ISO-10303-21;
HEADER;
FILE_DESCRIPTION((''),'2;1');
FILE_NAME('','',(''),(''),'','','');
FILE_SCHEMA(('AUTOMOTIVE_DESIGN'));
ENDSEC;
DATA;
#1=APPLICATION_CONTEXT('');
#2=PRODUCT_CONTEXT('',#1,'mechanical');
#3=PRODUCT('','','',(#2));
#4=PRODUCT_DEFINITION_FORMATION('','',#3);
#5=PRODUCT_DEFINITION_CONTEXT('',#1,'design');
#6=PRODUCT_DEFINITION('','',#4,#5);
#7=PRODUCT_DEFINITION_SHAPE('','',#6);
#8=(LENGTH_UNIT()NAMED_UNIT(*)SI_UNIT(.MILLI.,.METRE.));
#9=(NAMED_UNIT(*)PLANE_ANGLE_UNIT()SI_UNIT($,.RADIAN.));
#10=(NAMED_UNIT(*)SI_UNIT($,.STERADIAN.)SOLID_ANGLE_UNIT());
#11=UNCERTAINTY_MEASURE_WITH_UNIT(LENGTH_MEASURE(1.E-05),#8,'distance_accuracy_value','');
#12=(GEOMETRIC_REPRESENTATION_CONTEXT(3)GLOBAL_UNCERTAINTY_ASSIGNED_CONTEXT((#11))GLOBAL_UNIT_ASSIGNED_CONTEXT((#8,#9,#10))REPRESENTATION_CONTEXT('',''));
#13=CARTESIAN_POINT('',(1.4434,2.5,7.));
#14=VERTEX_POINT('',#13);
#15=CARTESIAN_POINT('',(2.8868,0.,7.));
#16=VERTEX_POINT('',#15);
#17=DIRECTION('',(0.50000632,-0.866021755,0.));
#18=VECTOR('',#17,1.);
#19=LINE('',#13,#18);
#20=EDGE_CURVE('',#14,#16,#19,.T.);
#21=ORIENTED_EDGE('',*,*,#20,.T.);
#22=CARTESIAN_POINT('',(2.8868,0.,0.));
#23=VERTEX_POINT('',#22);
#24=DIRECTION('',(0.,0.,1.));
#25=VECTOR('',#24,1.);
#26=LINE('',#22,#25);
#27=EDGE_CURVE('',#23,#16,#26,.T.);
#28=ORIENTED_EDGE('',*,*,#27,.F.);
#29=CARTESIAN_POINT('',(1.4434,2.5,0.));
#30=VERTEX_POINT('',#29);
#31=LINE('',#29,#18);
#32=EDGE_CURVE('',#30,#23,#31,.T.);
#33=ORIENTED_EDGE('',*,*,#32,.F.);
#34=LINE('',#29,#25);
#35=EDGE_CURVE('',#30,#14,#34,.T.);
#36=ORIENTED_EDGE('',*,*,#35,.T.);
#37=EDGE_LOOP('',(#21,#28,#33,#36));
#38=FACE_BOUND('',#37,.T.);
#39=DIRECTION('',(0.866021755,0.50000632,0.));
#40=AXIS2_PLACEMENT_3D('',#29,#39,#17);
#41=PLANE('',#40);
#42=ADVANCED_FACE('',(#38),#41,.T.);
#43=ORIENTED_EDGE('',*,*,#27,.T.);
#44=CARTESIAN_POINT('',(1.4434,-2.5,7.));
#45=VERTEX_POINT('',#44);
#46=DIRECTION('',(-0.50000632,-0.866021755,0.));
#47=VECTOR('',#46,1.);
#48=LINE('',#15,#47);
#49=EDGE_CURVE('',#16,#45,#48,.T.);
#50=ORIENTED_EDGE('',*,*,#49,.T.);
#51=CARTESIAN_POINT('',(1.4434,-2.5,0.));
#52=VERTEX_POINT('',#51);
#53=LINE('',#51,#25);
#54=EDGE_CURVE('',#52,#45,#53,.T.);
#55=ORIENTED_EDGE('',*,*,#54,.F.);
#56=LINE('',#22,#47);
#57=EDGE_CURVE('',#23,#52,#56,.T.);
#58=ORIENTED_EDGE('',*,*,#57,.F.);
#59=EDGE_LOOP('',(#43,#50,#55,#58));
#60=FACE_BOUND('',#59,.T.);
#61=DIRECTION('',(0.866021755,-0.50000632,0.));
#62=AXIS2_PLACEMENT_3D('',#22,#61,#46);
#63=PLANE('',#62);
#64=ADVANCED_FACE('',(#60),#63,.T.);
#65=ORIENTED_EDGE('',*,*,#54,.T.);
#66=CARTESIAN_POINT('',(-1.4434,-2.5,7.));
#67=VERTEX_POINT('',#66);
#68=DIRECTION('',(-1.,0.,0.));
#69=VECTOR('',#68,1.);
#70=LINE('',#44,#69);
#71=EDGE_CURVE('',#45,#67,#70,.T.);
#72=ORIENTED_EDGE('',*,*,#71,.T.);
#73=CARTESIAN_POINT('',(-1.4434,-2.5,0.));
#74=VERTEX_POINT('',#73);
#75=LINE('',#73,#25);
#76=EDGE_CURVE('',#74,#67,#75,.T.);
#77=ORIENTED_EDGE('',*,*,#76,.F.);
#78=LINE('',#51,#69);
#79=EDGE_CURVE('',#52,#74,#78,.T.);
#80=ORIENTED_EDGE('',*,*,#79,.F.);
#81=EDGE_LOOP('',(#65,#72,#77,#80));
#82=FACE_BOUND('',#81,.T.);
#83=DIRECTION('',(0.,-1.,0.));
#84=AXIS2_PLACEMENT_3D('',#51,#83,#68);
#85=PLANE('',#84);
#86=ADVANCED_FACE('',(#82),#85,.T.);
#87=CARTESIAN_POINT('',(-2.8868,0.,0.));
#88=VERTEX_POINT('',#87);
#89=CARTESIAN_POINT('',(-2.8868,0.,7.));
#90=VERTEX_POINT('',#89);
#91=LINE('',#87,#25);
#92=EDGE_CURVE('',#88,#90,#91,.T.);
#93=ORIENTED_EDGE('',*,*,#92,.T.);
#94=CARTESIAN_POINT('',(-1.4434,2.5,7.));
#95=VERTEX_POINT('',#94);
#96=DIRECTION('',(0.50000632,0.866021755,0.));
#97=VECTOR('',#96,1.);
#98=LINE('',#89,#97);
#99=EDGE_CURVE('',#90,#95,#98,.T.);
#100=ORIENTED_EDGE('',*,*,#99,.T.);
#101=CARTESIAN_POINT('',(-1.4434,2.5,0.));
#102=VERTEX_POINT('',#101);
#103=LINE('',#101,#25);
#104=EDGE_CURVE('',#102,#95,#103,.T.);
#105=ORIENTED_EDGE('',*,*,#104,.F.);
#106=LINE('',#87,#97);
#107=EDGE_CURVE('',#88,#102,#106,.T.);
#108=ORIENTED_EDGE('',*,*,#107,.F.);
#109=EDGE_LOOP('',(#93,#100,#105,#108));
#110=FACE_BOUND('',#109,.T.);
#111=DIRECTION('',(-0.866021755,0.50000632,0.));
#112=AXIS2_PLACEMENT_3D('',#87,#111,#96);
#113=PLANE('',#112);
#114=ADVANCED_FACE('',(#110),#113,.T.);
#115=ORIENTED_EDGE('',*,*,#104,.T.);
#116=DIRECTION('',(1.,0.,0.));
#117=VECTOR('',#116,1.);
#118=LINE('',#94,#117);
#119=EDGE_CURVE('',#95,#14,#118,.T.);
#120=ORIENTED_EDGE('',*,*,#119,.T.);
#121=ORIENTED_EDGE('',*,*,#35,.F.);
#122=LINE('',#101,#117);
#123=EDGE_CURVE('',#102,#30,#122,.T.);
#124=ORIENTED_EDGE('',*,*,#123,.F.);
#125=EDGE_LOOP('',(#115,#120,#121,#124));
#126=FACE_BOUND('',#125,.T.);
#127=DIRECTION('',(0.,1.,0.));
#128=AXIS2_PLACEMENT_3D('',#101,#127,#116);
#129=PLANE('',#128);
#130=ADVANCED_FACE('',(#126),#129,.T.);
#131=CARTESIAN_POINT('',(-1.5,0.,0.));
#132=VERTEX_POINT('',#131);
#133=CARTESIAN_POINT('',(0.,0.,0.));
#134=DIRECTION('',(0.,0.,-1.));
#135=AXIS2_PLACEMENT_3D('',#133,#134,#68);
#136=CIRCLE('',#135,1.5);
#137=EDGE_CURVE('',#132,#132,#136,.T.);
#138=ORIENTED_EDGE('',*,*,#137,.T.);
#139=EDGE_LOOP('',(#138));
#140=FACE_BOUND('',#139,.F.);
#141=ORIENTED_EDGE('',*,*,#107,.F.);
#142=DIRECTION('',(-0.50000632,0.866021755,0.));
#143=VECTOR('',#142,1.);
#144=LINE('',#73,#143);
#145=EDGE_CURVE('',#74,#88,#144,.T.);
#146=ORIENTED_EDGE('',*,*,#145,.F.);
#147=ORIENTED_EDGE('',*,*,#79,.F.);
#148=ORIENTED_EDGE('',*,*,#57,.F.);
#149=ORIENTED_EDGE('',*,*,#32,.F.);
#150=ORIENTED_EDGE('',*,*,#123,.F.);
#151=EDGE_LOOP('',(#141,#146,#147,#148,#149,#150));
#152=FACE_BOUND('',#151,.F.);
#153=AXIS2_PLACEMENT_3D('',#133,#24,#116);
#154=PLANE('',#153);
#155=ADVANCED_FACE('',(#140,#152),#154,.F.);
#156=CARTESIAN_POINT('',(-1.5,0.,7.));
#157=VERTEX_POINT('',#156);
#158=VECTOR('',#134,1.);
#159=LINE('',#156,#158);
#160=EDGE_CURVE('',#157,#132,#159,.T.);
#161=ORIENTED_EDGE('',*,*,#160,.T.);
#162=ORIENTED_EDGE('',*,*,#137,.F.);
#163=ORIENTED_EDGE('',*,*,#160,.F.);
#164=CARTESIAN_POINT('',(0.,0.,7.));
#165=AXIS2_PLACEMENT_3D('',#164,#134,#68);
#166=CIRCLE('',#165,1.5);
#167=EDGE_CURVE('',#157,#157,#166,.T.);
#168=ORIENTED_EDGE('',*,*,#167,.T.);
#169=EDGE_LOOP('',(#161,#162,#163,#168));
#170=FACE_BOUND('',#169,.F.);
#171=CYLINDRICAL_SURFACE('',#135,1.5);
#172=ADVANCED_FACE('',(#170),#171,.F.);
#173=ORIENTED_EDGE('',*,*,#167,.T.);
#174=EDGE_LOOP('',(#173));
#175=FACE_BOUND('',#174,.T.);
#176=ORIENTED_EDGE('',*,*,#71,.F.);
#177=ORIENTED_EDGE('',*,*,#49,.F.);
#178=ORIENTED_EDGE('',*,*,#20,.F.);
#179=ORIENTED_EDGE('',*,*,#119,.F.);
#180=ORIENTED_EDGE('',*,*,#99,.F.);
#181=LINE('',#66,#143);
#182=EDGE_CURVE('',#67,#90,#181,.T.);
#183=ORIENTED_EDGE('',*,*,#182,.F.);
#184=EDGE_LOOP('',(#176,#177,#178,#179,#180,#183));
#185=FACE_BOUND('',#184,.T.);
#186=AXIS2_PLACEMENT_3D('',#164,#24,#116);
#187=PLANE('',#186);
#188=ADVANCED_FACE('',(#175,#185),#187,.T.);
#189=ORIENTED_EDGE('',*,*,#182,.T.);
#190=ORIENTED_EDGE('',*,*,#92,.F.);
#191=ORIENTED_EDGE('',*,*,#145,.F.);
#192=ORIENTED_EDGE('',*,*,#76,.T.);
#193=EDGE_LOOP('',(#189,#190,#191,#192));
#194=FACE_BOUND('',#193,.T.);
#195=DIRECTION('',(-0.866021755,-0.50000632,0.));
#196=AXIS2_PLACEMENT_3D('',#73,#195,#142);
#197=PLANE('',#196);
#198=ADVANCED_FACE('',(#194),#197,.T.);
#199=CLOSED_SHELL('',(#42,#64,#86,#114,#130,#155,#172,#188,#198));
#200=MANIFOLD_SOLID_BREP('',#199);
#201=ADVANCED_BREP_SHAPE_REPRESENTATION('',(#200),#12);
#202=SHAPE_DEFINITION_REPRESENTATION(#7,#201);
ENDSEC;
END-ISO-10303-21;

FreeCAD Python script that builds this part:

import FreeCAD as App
import Part
import Sketcher
Q = App.Units.Quantity


def add_polygon(sketch, points):
    """Adds a closed chain of lines whose ends are joined by coincident constraints."""
    first, n = sketch.GeometryCount, len(points)
    for a, b in zip(points, points[1:] + points[:1]):
        sketch.addGeometry(Part.LineSegment(App.Vector(*a, 0), App.Vector(*b, 0)), False)
    for i in range(n):
        sketch.addConstraint(Sketcher.Constraint("Coincident", first + i, 2, first + (i + 1) % n, 1))

doc = App.newDocument("Part")
body = doc.addObject("PartDesign::Body", "Body")

# Sketch on XY plane
sketch1 = doc.addObject("Sketcher::SketchObject", "Sketch")
body.addObject(sketch1)
sketch1.AttachmentSupport = (doc.XY_Plane, [""])
sketch1.MapMode = "FlatFace"
add_polygon(sketch1, [(1.4, -2.5), (2.9, 0), (1.4, 2.5), (-1.4, 2.5), (-2.9, 0), (-1.4, -2.5)])  # lines 0-5
sketch1.addConstraint(Sketcher.Constraint("Horizontal", 2))
sketch1.addConstraint(Sketcher.Constraint("Horizontal", 5))
sketch1.addConstraint(Sketcher.Constraint("Symmetric", 0, 2, 3, 2, -1, 1))
sketch1.addConstraint(Sketcher.Constraint("Symmetric", 1, 2, 4, 2, -1, 1))
sketch1.addConstraint(Sketcher.Constraint("PointOnObject", 0, 2, -1))
sketch1.addConstraint(Sketcher.Constraint("Parallel", 0, 3))
sketch1.addConstraint(Sketcher.Constraint("Vertical", 2, 2, 4, 2))
sketch1.addConstraint(Sketcher.Constraint("DistanceY", 4, 2, 2, 2, Q("5 mm")))
sketch1.addConstraint(Sketcher.Constraint("Angle", 0, Q("59.9996 deg")))
sketch1.addConstraint(Sketcher.Constraint("DistanceX", 2, 2, 2, 1, Q("2.8868 mm")))
pad1 = doc.addObject("PartDesign::Pad", "Pad")
body.addObject(pad1)
pad1.Profile = sketch1
pad1.Length = 7

# Sketch on XY plane
sketch2 = doc.addObject("Sketcher::SketchObject", "Sketch001")
body.addObject(sketch2)
sketch2.AttachmentSupport = (doc.XY_Plane, [""])
sketch2.MapMode = "FlatFace"
sketch2.AttachmentOffset = App.Placement(App.Vector(0, 0, 7), App.Rotation())
sketch2.addGeometry(Part.Circle(App.Vector(0, 0, 0), App.Vector(0, 0, 1), 1.5), False)
sketch2.addConstraint(Sketcher.Constraint("Coincident", 0, 3, -1, 1))
sketch2.addConstraint(Sketcher.Constraint("Diameter", 0, Q("3 mm")))
pad2 = doc.addObject("PartDesign::Pad", "Pad001")
body.addObject(pad2)
pad2.Profile = sketch2
pad2.Length = 8

# Sketch on XY plane
sketch3 = doc.addObject("Sketcher::SketchObject", "Sketch002")
body.addObject(sketch3)
sketch3.AttachmentSupport = (doc.XY_Plane, [""])
sketch3.MapMode = "FlatFace"
sketch3.addGeometry(Part.Circle(App.Vector(0, 0, 0), App.Vector(0, 0, 1), 1.5), False)
sketch3.addConstraint(Sketcher.Constraint("Coincident", 0, 3, -1, 1))
sketch3.addConstraint(Sketcher.Constraint("Diameter", 0, Q("3 mm")))
pocket1 = doc.addObject("PartDesign::Pocket", "Pocket")
body.addObject(pocket1)
pocket1.Profile = sketch3
pocket1.Length = 4
pocket1.Reversed = True

# Sketch on XY plane
sketch4 = doc.addObject("Sketcher::SketchObject", "Sketch003")
body.addObject(sketch4)
sketch4.AttachmentSupport = (doc.XY_Plane, [""])
sketch4.MapMode = "FlatFace"
sketch4.AttachmentOffset = App.Placement(App.Vector(0, 0, 4), App.Rotation())
sketch4.addGeometry(Part.Circle(App.Vector(0, 0, 0), App.Vector(0, 0, 1), 1.5), False)
sketch4.addConstraint(Sketcher.Constraint("Coincident", 0, 3, -1, 1))
sketch4.addConstraint(Sketcher.Constraint("Diameter", 0, Q("3 mm")))
pocket2 = doc.addObject("PartDesign::Pocket", "Pocket001")
body.addObject(pocket2)
pocket2.Profile = sketch4
pocket2.Type = "ThroughAll"
pocket2.Reversed = True

doc.recompute()
